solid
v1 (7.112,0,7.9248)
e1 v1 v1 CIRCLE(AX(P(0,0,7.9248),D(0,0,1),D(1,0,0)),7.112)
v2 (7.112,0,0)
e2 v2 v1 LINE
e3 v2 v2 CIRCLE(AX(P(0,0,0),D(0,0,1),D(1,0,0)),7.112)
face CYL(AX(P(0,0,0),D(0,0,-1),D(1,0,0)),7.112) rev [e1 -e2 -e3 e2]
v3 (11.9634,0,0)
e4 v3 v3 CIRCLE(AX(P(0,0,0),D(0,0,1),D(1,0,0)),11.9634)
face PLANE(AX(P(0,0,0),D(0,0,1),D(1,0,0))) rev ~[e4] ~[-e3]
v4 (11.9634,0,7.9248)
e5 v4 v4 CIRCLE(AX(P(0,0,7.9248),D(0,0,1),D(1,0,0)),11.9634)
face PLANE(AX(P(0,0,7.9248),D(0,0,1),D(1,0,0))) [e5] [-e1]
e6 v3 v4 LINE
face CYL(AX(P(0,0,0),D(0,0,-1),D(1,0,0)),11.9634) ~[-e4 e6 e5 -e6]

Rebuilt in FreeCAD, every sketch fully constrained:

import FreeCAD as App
import Part
import Sketcher

V = App.Vector
Q = App.Units.Quantity

doc = App.newDocument("Part")
body = doc.addObject("PartDesign::Body", "Body")

# Sketch on XY plane
sketch1 = body.newObject("Sketcher::SketchObject", "Sketch")
sketch1.AttachmentSupport = (doc.getObject("XY_Plane"), [""])
sketch1.MapMode = "FlatFace"
sketch1.addGeometry([
    Part.Circle(V(0, 0, 0), V(0, 0, 1), 12),
    Part.Circle(V(0, 0, 0), V(0, 0, 1), 7),
], False)
sketch1.addConstraint([
    Sketcher.Constraint("Coincident", 0, 3, -1, 1),
    Sketcher.Constraint("Coincident", 1, 3, -1, 1),
    Sketcher.Constraint("Diameter", 1, Q("0.56 in")),
    Sketcher.Constraint("Diameter", 0, Q("0.942 in")),
])
pad1 = body.newObject("PartDesign::Pad", "Pad")
pad1.Profile = sketch1
pad1.Length = Q("0.312 in")

doc.recompute()
